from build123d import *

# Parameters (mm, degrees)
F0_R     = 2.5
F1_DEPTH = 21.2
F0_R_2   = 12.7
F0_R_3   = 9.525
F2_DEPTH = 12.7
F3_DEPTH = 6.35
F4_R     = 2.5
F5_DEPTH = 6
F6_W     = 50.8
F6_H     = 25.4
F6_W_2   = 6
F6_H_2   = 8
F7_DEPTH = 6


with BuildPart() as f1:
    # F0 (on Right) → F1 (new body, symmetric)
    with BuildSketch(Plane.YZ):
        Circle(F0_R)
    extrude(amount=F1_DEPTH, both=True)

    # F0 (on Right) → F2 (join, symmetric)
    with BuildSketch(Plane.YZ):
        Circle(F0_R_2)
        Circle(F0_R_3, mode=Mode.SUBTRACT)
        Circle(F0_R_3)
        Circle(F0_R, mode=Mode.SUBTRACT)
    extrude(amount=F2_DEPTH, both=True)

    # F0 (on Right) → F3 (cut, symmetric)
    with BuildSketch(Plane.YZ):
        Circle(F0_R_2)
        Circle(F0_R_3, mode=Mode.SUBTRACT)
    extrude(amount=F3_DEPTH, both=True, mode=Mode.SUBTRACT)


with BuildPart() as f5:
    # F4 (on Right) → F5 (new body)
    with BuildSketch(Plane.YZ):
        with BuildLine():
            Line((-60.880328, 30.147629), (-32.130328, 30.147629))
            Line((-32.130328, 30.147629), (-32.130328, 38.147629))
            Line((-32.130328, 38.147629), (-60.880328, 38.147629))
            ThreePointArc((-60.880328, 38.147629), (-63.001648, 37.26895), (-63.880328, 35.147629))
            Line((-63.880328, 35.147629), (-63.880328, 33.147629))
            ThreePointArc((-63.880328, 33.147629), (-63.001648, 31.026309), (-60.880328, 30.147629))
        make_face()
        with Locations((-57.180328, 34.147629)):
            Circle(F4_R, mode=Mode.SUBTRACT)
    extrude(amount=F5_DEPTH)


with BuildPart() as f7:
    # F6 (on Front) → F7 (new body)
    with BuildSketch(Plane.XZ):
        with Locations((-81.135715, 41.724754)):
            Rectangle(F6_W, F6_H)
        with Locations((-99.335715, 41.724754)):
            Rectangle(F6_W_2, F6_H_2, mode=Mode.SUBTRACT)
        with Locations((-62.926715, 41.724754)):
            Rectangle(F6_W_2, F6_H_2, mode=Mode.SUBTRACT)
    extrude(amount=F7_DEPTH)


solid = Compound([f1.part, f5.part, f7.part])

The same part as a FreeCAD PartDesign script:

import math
import FreeCAD as App
import Part
import Sketcher
from FreeCAD import Vector
Q = App.Units.Quantity


def add_polygon(sketch, points):
    """Adds a closed chain of lines whose ends are joined by coincident constraints."""
    first, n = sketch.GeometryCount, len(points)
    for a, b in zip(points, points[1:] + points[:1]):
        sketch.addGeometry(Part.LineSegment(App.Vector(*a, 0), App.Vector(*b, 0)), False)
    for i in range(n):
        sketch.addConstraint(Sketcher.Constraint("Coincident", first + i, 2, first + (i + 1) % n, 1))

doc = App.newDocument("Part")
body = doc.addObject("PartDesign::Body", "Body")

sketch1 = body.newObject("Sketcher::SketchObject", "Sketch")
sketch1.AttachmentSupport = (doc.getObject("YZ_Plane"), [""])
sketch1.MapMode = "FlatFace"
sketch1.addGeometry(Part.Circle(Vector(0, 0, 0), Vector(0, 0, 1), 2.5), False)
sketch1.addConstraint([
    Sketcher.Constraint("Coincident", 0, 3, -1, 1),
    Sketcher.Constraint("Diameter", 0, Q("5 mm")),
])
pad1 = body.newObject("PartDesign::Pad", "Pad")
pad1.Profile = sketch1
pad1.Length = 42.4
pad1.Midplane = True

sketch2 = body.newObject("Sketcher::SketchObject", "Sketch001")
sketch2.AttachmentSupport = (doc.getObject("YZ_Plane"), [""])
sketch2.MapMode = "FlatFace"
sketch2.addGeometry([
    Part.Circle(Vector(0, 0, 0), Vector(0, 0, 1), 12.7),
    Part.Circle(Vector(0, 0, 0), Vector(0, 0, 1), 2.5),
], False)
sketch2.addConstraint([
    Sketcher.Constraint("Coincident", 0, 3, -1, 1),
    Sketcher.Constraint("Coincident", 1, 3, -1, 1),
    Sketcher.Constraint("Diameter", 1, Q("5 mm")),
    Sketcher.Constraint("Diameter", 0, Q("25.4 mm")),
])
pad2 = body.newObject("PartDesign::Pad", "Pad001")
pad2.Profile = sketch2
pad2.Length = 25.4
pad2.Midplane = True

sketch3 = body.newObject("Sketcher::SketchObject", "Sketch002")
sketch3.AttachmentSupport = (doc.getObject("YZ_Plane"), [""])
sketch3.MapMode = "FlatFace"
sketch3.addGeometry([
    Part.Circle(Vector(0, 0, 0), Vector(0, 0, 1), 13),
    Part.Circle(Vector(0, 0, 0), Vector(0, 0, 1), 10),
], False)
sketch3.addConstraint([
    Sketcher.Constraint("Coincident", 0, 3, -1, 1),
    Sketcher.Constraint("Coincident", 1, 3, -1, 1),
    Sketcher.Constraint("Diameter", 0, Q("25.4 mm")),
    Sketcher.Constraint("Diameter", 1, Q("19.05 mm")),
])
pocket1 = body.newObject("PartDesign::Pocket", "Pocket")
pocket1.Profile = sketch3
pocket1.Length = 12.7
pocket1.Midplane = True
body2 = doc.addObject("PartDesign::Body", "Body001")

sketch4 = body2.newObject("Sketcher::SketchObject", "Sketch003")
sketch4.AttachmentSupport = (doc.getObject("YZ_Plane001"), [""])
sketch4.MapMode = "FlatFace"
sketch4.addGeometry([
    Part.LineSegment(Vector(-60.9, 30.1, 0), Vector(-32.1, 30.1, 0)),
    Part.LineSegment(Vector(-32.1, 30.1, 0), Vector(-32.1, 38.1, 0)),
    Part.LineSegment(Vector(-32.1, 38.1, 0), Vector(-60.9, 38.1, 0)),
    Part.ArcOfCircle(Part.Circle(Vector(-60.9, 35.1, 0), Vector(0, 0, 1), 3), math.radians(90), math.radians(180)),
    Part.LineSegment(Vector(-63.9, 35.1, 0), Vector(-63.9, 33.1, 0)),
    Part.ArcOfCircle(Part.Circle(Vector(-60.9, 33.1, 0), Vector(0, 0, 1), 3), math.radians(-180), math.radians(-90)),
    Part.Circle(Vector(-57.2, 34.1, 0), Vector(0, 0, 1), 2.5),
], False)
sketch4.addConstraint([
    Sketcher.Constraint("Coincident", 0, 2, 1, 1),
    Sketcher.Constraint("Coincident", 1, 2, 2, 1),
    Sketcher.Constraint("Tangent", 2, 2, 3, 1),
    Sketcher.Constraint("Tangent", 3, 2, 4, 1),
    Sketcher.Constraint("Tangent", 4, 2, 5, 1),
    Sketcher.Constraint("Tangent", 5, 2, 0, 1),
    Sketcher.Constraint("Horizontal", 0),
    Sketcher.Constraint("Vertical", 1),
    Sketcher.Constraint("Horizontal", 2),
    Sketcher.Constraint("Vertical", 4),
    Sketcher.Constraint("Equal", 3, 5),
    Sketcher.Constraint("Diameter", 6, Q("5 mm")),
    Sketcher.Constraint("Radius", 3, Q("2.999999 mm")),
    Sketcher.Constraint("DistanceY", 1, 1, 1, 2, Q("8 mm")),
    Sketcher.Constraint("DistanceY", 5, 3, 6, 3, Q("0.999999 mm")),
    Sketcher.Constraint("DistanceX", 0, 1, 0, 2, Q("28.75 mm")),
    Sketcher.Constraint("DistanceX", 5, 3, 6, 3, Q("3.699999 mm")),
    Sketcher.Constraint("DistanceX", 3, 3, -1, 1, Q("60.880329 mm")),
    Sketcher.Constraint("DistanceY", -1, 1, 3, 3, Q("35.14763 mm")),
])
pad3 = body2.newObject("PartDesign::Pad", "Pad002")
pad3.Profile = sketch4
pad3.Length = 6
body3 = doc.addObject("PartDesign::Body", "Body002")

sketch5 = body3.newObject("Sketcher::SketchObject", "Sketch004")
sketch5.AttachmentSupport = (doc.getObject("XZ_Plane002"), [""])
sketch5.MapMode = "FlatFace"
add_polygon(sketch5, [(-107, 54), (-107, 29), (-56, 29), (-56, 54)])
add_polygon(sketch5, [(-96, 38), (-102, 38), (-102, 46), (-96, 46)])
add_polygon(sketch5, [(-60, 38), (-66, 38), (-66, 46), (-60, 46)])
sketch5.addConstraint([
    Sketcher.Constraint("Vertical", 0),
    Sketcher.Constraint("Horizontal", 1),
    Sketcher.Constraint("Vertical", 2),
    Sketcher.Constraint("Horizontal", 3),
    Sketcher.Constraint("Horizontal", 4),
    Sketcher.Constraint("Vertical", 5),
    Sketcher.Constraint("Horizontal", 6),
    Sketcher.Constraint("Vertical", 7),
    Sketcher.Constraint("Horizontal", 8),
    Sketcher.Constraint("Vertical", 9),
    Sketcher.Constraint("Horizontal", 10),
    Sketcher.Constraint("Vertical", 11),
    Sketcher.Constraint("Horizontal", 7, 2, 8, 2),
    Sketcher.Constraint("Horizontal", 6, 2, 9, 2),
    Sketcher.Constraint("Equal", 6, 8),
    Sketcher.Constraint("DistanceX", 4, 2, 4, 1, Q("6 mm")),
    Sketcher.Constraint("DistanceY", 5, 1, 5, 2, Q("8 mm")),
    Sketcher.Constraint("DistanceX", 1, 1, 1, 2, Q("50.8 mm")),
    Sketcher.Constraint("DistanceY", 0, 2, 0, 1, Q("25.4 mm")),
    Sketcher.Constraint("DistanceX", 0, 2, 4, 2, Q("4.2 mm")),
    Sketcher.Constraint("DistanceY", 0, 2, 4, 2, Q("8.7 mm")),
    Sketcher.Constraint("DistanceX", 8, 2, 1, 2, Q("10.191 mm")),
    Sketcher.Constraint("DistanceX", 0, 2, -1, 1, Q("106.535715 mm")),
    Sketcher.Constraint("DistanceY", -1, 1, 0, 2, Q("29.024754 mm")),
])
pad4 = body3.newObject("PartDesign::Pad", "Pad003")
pad4.Profile = sketch5
pad4.Length = 6

doc.recompute()
